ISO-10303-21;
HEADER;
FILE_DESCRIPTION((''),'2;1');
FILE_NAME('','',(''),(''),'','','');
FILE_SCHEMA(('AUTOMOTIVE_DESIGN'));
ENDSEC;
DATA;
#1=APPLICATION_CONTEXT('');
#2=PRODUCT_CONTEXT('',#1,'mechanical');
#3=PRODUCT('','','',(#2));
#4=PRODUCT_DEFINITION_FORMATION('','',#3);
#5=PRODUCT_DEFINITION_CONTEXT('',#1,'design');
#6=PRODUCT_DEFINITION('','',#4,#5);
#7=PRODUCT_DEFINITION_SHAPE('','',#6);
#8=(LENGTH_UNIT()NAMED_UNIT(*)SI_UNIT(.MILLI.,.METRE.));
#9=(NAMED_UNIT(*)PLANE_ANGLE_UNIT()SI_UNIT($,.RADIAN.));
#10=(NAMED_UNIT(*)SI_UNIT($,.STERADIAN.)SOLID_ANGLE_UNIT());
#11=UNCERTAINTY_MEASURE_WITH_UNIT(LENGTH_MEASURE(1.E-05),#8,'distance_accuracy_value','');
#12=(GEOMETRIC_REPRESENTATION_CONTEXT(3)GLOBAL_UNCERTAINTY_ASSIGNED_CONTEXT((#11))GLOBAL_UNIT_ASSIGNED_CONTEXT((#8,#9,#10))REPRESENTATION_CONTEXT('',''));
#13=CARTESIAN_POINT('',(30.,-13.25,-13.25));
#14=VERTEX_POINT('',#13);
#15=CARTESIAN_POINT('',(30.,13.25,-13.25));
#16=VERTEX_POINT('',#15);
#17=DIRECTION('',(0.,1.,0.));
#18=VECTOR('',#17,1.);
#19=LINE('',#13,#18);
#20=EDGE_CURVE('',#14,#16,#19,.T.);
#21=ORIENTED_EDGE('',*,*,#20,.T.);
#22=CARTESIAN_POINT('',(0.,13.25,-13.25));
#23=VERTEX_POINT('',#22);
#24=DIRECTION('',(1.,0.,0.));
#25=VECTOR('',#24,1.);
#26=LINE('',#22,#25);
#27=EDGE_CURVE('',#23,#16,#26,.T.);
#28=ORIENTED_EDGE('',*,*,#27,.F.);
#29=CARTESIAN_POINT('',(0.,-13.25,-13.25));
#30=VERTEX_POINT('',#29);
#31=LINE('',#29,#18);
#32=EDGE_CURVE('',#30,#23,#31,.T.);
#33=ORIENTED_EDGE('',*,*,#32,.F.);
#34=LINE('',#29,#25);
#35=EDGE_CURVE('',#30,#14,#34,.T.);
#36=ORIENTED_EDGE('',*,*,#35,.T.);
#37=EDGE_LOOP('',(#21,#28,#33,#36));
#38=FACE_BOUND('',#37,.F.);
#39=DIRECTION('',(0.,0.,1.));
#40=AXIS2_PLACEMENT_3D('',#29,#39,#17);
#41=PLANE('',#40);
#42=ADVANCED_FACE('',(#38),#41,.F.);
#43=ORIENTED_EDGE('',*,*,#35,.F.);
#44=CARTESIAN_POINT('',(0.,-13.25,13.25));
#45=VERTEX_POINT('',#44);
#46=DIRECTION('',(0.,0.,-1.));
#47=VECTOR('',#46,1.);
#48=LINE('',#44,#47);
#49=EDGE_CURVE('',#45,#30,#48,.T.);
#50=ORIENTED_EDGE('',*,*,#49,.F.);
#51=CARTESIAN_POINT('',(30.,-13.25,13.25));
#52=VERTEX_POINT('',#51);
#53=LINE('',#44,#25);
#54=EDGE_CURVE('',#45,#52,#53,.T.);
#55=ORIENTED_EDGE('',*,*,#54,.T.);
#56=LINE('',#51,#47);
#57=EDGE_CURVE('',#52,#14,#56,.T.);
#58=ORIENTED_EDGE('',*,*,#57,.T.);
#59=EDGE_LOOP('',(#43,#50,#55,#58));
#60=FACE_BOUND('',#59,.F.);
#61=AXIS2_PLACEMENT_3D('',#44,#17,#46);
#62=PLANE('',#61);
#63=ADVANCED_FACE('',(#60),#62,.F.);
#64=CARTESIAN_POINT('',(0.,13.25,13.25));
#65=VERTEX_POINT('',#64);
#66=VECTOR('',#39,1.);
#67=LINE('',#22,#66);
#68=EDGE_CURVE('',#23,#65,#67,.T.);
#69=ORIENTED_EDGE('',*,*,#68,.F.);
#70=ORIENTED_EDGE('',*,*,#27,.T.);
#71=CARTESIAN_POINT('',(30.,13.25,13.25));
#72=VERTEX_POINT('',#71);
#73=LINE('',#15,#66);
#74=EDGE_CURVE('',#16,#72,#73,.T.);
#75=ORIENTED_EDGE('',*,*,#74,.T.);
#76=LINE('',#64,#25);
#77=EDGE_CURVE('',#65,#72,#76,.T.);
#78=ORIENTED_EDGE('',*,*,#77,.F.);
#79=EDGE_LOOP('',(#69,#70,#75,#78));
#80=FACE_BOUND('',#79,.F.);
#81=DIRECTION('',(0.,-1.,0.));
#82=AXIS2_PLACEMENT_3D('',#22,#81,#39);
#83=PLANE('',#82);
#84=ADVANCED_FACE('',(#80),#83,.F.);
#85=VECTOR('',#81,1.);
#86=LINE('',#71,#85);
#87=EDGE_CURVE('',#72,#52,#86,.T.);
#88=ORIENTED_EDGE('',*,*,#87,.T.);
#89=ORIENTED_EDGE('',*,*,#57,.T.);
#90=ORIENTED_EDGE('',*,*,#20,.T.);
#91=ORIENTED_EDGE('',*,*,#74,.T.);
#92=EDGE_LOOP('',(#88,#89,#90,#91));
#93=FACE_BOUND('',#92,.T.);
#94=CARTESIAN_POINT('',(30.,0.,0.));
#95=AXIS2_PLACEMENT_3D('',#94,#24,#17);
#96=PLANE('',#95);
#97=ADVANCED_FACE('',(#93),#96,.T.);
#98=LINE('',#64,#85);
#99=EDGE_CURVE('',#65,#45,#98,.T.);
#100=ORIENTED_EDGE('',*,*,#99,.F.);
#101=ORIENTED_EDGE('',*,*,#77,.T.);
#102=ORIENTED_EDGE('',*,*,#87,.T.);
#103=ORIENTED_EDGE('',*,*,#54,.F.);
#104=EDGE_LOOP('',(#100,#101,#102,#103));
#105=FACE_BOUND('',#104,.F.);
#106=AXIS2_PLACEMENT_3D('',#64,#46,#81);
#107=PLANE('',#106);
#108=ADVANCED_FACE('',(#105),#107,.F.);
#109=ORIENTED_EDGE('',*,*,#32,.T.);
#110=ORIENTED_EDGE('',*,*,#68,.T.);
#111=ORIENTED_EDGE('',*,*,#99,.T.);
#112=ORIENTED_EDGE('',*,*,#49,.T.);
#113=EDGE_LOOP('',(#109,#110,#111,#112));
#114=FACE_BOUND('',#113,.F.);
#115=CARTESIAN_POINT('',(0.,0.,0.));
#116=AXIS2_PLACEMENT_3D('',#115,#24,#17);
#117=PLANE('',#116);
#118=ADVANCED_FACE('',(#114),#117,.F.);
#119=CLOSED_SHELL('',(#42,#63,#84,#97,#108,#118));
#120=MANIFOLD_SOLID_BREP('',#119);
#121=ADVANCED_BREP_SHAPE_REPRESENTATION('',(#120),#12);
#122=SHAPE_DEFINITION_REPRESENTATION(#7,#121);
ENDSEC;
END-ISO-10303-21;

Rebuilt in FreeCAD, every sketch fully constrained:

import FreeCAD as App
import Part
import Sketcher
Q = App.Units.Quantity


def add_polygon(sketch, points):
    """Adds a closed chain of lines whose ends are joined by coincident constraints."""
    first, n = sketch.GeometryCount, len(points)
    for a, b in zip(points, points[1:] + points[:1]):
        sketch.addGeometry(Part.LineSegment(App.Vector(*a, 0), App.Vector(*b, 0)), False)
    for i in range(n):
        sketch.addConstraint(Sketcher.Constraint("Coincident", first + i, 2, first + (i + 1) % n, 1))

doc = App.newDocument("Part")
body = doc.addObject("PartDesign::Body", "Body")

# Sketch on YZ plane
sketch1 = body.newObject("Sketcher::SketchObject", "Sketch")
sketch1.AttachmentSupport = (doc.getObject("YZ_Plane"), [""])
sketch1.MapMode = "FlatFace"
add_polygon(sketch1, [(-13, 13), (-13, -13), (13, -13), (13, 13)])  # lines 0-3
sketch1.addConstraint([
    Sketcher.Constraint("Vertical", 0),
    Sketcher.Constraint("Horizontal", 1),
    Sketcher.Constraint("Vertical", 2),
    Sketcher.Constraint("Horizontal", 3),
    Sketcher.Constraint("Symmetric", 0, 2, 2, 2, -1, 1),
    Sketcher.Constraint("Equal", 3, 0),
    Sketcher.Constraint("DistanceX", 1, 1, 1, 2, Q("26.5 mm")),
])
pad1 = body.newObject("PartDesign::Pad", "Pad")
pad1.Profile = sketch1
pad1.Length = 30

doc.recompute()
